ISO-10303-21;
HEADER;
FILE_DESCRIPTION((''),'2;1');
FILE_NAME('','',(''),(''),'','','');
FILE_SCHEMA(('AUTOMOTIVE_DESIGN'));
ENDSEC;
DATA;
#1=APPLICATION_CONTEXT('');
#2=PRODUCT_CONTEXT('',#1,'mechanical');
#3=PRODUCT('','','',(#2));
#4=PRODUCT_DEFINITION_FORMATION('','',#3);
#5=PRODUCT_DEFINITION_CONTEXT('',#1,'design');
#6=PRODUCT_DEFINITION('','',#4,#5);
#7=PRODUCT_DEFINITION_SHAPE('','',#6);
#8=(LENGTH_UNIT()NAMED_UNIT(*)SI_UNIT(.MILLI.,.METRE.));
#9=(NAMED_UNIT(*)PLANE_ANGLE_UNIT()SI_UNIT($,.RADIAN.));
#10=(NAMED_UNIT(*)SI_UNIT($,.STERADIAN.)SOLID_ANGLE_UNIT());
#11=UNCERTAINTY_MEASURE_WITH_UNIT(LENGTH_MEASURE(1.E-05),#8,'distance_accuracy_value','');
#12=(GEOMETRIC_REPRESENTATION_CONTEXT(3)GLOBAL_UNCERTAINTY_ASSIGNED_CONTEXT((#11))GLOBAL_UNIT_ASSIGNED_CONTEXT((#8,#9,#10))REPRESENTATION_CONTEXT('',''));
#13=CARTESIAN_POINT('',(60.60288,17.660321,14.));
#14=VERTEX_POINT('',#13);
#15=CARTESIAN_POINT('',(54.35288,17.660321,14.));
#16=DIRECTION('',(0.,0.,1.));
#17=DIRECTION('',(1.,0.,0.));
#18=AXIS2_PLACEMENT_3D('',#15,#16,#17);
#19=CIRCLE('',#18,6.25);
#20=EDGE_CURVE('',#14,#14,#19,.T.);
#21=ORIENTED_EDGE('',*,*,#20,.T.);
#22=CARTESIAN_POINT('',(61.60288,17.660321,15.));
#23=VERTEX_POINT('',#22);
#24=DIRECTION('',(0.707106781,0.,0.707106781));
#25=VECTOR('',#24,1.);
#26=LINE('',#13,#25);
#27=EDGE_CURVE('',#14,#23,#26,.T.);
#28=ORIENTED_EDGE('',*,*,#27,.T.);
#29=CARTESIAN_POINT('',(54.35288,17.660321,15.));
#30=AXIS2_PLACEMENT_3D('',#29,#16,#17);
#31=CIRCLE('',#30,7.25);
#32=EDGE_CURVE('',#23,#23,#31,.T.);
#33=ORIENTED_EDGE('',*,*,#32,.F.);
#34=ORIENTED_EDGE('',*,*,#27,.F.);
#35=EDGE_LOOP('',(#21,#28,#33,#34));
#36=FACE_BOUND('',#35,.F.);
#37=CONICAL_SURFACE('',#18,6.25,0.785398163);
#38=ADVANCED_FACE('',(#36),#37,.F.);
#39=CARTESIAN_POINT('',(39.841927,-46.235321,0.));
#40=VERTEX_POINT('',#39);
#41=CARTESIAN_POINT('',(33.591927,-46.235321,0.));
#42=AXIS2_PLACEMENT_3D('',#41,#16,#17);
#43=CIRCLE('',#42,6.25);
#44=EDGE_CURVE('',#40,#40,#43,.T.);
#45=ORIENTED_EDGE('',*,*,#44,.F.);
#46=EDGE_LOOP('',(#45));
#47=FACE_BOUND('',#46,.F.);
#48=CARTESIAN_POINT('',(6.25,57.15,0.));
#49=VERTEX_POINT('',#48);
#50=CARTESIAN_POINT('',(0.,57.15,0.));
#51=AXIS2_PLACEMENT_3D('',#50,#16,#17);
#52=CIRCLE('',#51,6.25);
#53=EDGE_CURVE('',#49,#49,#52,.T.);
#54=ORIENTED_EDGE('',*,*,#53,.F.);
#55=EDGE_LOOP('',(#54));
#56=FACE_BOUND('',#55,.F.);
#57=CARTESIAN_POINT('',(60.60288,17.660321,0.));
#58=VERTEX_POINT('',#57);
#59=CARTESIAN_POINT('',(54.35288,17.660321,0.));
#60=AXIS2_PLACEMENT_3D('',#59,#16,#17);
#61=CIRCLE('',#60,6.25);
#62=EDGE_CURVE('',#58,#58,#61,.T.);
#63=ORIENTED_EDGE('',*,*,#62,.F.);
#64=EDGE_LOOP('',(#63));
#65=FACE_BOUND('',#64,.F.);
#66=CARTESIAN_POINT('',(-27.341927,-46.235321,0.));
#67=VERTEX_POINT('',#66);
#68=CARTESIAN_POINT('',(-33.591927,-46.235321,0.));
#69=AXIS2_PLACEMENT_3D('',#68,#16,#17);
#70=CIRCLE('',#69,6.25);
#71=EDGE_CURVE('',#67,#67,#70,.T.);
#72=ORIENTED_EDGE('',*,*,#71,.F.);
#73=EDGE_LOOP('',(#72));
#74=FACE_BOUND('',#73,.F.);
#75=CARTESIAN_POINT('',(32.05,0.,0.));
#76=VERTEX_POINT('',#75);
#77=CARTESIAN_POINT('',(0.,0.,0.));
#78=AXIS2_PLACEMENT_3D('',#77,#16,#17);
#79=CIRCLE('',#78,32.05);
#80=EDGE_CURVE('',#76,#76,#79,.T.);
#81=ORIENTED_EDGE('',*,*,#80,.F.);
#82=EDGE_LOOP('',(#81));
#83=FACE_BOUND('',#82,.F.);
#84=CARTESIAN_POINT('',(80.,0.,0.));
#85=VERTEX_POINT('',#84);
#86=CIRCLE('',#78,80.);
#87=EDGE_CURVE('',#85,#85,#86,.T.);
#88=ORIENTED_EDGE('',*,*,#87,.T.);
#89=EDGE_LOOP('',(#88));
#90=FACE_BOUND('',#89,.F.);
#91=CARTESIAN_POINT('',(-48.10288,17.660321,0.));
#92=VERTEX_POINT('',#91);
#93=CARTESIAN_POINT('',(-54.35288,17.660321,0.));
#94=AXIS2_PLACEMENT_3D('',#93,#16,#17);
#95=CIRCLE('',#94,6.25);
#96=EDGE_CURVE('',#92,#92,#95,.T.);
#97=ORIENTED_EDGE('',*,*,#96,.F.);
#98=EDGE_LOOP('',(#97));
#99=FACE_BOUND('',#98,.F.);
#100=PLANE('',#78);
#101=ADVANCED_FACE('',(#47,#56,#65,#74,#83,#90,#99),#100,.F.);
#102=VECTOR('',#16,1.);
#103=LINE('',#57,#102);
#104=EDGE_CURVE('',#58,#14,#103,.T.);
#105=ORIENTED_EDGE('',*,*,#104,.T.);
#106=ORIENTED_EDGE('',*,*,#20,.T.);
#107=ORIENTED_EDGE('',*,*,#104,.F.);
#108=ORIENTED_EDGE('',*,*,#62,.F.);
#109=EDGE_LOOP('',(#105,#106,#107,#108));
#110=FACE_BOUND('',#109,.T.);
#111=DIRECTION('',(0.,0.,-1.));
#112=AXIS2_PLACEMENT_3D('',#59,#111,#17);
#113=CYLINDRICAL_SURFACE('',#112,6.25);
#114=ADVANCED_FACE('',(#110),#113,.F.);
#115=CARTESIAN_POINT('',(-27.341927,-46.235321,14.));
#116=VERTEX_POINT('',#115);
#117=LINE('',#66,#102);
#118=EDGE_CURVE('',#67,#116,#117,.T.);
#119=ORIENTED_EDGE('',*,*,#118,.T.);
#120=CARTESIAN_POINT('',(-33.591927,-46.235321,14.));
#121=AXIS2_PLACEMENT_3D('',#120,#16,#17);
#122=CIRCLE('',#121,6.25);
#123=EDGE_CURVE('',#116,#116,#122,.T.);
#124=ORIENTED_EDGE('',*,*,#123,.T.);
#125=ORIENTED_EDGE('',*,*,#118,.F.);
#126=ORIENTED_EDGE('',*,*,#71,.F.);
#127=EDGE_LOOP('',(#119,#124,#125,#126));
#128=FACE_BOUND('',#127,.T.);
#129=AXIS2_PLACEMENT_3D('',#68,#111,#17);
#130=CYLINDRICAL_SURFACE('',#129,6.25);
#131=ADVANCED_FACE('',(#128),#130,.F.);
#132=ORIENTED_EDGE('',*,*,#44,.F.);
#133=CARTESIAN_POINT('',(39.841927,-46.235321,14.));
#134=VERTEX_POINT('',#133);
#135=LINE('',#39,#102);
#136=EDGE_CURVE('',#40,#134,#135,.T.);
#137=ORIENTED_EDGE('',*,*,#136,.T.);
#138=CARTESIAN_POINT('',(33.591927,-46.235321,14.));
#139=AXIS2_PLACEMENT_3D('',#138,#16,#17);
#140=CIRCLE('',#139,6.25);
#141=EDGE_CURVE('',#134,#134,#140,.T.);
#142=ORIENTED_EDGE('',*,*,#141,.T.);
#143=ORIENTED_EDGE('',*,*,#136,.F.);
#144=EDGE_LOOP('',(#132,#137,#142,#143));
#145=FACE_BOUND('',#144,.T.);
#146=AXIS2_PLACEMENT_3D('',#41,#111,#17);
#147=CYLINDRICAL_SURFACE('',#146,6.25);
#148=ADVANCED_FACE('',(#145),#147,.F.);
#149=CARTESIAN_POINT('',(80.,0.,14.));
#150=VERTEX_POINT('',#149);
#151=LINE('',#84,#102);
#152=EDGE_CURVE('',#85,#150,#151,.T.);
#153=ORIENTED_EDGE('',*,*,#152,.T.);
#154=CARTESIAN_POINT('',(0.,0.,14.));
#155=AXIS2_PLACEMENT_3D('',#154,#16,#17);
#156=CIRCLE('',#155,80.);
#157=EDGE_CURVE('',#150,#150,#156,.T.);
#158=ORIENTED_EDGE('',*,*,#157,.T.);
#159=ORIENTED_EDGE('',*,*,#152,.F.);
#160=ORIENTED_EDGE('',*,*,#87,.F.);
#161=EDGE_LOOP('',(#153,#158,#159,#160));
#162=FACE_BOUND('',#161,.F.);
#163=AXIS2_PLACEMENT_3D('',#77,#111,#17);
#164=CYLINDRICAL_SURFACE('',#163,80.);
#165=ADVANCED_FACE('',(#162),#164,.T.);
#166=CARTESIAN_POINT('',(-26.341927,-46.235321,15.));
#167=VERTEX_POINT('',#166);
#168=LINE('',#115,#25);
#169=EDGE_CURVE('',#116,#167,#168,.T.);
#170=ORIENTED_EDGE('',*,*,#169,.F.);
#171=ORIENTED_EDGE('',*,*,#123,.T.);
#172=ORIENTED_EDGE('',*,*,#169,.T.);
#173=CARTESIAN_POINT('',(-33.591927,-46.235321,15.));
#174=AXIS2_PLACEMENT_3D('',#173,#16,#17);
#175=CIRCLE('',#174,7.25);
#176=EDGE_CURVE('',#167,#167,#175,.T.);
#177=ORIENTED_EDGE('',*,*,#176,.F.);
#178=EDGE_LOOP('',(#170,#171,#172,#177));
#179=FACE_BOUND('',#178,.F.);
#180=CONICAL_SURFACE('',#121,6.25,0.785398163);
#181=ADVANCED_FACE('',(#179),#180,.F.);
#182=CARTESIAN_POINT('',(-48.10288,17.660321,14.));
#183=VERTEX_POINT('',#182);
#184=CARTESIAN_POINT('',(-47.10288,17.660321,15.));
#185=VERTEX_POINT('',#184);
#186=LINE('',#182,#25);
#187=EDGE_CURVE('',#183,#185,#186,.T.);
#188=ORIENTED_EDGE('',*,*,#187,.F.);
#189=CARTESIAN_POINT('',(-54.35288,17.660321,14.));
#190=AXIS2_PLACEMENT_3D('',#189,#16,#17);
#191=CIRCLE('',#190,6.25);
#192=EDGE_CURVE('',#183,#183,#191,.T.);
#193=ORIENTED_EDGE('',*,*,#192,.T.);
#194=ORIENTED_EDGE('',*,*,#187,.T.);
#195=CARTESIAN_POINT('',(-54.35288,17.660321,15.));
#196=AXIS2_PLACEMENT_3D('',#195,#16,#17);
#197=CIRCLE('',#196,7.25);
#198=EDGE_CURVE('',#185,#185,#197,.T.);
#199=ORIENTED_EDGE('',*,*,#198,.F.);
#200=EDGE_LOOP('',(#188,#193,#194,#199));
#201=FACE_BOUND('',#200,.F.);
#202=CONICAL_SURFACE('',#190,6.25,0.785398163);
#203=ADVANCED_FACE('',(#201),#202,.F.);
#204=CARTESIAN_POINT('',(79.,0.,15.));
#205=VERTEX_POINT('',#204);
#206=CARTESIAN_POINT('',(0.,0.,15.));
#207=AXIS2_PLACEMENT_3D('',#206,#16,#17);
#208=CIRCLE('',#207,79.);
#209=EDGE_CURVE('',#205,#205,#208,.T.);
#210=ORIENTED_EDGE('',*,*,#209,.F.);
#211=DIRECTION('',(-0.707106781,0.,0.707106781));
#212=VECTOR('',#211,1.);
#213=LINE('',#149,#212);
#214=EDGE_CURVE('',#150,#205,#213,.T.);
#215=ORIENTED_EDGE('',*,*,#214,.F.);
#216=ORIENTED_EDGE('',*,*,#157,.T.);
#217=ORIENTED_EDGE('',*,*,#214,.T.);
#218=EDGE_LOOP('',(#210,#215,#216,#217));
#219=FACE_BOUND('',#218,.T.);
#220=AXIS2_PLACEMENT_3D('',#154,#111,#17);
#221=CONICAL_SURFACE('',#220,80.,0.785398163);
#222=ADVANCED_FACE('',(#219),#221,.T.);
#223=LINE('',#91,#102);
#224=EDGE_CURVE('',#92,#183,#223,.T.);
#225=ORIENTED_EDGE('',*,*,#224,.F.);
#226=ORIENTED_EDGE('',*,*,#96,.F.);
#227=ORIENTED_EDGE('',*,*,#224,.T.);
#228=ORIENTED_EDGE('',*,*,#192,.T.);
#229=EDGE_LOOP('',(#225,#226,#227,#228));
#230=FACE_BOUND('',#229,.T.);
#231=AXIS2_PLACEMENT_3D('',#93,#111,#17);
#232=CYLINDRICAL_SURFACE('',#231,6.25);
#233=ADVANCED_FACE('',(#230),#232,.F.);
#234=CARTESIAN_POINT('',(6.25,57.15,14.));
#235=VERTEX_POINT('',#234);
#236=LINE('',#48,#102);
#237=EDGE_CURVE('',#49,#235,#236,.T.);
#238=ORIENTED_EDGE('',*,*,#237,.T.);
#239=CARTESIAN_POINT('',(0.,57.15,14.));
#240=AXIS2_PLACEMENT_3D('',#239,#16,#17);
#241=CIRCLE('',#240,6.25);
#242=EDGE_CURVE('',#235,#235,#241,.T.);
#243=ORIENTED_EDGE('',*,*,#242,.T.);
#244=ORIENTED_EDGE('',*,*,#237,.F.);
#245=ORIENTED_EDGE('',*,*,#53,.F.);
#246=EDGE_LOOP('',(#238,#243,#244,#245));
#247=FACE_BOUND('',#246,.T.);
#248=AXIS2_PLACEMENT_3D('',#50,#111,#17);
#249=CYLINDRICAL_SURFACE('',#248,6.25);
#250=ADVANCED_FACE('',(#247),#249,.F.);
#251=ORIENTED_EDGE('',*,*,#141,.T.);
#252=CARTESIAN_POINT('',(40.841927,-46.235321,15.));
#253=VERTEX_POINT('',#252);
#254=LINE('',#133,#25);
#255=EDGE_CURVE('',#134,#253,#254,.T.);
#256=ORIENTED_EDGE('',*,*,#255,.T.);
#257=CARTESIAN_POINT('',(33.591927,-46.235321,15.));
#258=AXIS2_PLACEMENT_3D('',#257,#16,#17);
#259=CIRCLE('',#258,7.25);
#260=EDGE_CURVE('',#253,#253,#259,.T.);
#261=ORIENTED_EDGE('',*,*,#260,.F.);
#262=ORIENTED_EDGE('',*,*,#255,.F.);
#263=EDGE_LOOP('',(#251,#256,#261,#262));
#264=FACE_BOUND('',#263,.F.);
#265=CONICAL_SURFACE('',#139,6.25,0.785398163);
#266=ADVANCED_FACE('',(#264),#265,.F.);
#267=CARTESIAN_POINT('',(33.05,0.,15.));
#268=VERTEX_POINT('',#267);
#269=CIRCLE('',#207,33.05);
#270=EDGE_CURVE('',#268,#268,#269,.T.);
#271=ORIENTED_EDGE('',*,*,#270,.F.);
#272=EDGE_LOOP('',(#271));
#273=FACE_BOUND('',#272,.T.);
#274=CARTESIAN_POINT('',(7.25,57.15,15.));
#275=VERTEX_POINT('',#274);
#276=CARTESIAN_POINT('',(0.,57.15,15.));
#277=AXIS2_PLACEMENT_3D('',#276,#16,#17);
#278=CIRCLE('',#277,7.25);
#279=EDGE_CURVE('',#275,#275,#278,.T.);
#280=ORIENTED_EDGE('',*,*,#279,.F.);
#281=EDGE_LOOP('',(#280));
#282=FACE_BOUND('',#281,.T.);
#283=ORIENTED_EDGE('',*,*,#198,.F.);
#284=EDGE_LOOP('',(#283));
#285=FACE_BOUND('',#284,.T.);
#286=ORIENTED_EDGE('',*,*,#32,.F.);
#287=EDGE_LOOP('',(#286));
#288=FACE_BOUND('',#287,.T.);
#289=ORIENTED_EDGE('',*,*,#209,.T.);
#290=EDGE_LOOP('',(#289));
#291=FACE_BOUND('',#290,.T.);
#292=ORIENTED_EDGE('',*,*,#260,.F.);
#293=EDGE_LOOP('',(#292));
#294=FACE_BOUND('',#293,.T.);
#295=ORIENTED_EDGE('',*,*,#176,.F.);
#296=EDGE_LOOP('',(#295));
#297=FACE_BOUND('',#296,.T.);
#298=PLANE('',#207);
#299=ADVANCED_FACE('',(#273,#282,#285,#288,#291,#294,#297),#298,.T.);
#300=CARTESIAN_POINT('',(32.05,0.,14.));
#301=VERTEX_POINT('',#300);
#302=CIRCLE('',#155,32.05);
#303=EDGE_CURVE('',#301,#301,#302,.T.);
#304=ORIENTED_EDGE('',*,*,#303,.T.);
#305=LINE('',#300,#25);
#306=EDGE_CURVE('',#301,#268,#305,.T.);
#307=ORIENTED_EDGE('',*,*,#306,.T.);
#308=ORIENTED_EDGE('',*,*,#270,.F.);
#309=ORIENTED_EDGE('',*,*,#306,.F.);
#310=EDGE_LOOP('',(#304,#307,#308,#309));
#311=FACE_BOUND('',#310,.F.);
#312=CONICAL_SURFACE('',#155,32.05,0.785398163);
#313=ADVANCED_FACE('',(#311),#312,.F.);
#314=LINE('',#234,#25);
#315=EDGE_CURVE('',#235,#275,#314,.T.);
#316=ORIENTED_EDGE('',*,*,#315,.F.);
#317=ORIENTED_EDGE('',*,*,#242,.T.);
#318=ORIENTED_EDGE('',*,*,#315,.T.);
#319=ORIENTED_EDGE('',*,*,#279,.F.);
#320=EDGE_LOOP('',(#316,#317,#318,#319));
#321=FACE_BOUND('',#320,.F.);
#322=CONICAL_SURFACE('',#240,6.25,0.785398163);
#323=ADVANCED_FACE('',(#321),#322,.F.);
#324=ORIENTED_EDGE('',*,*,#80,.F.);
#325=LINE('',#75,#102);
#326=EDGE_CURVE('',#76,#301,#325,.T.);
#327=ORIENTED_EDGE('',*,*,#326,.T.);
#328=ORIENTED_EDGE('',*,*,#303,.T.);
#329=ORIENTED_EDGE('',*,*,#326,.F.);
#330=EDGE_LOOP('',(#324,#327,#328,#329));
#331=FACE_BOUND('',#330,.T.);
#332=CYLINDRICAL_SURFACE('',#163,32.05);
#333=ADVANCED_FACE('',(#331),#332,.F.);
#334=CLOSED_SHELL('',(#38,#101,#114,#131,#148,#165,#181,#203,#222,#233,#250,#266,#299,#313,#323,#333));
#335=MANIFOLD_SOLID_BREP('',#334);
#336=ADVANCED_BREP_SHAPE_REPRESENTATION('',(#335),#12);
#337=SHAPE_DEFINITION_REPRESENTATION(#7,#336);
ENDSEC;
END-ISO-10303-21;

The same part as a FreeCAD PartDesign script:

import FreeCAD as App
import Part
import Sketcher

V = App.Vector


def edges_at(feature, points):
    """Names of the edges that pass closest to the given points."""
    edges = feature.Shape.Edges
    near = lambda p: min(range(len(edges)), key=lambda i: edges[i].distToShape(Part.Vertex(*p))[0])
    return sorted({f"Edge{near(p) + 1}" for p in points})

doc = App.newDocument("Part")
body = doc.addObject("PartDesign::Body", "Body")

# Sketch on XY plane
sketch1 = body.newObject("Sketcher::SketchObject", "Sketch")
sketch1.AttachmentSupport = (doc.getObject("XY_Plane"), [""])
sketch1.MapMode = "FlatFace"
sketch1.addGeometry([
    Part.Circle(V(0, 0, 0), V(0, 0, 1), 80),  # 0
    Part.Circle(V(-33.591927, -46.235321, 0), V(0, 0, 1), 6.25),  # 1
    Part.Circle(V(0, 0, 0), V(0, 0, 1), 32.05),  # 2
    Part.Circle(V(33.591927, -46.235321, 0), V(0, 0, 1), 6.25),  # 3
    Part.Circle(V(-54.35288, 17.660321, 0), V(0, 0, 1), 6.25),  # 4
    Part.Circle(V(0, 57.15, 0), V(0, 0, 1), 6.25),  # 5
    Part.Circle(V(54.35288, 17.660321, 0), V(0, 0, 1), 6.25),  # 6
], False)
sketch1.addConstraint([
    Sketcher.Constraint("Coincident", 0, 3, -1, 1),
    Sketcher.Constraint("Coincident", 2, 3, -1, 1),
    Sketcher.Constraint("Equal", 1, 3),
    Sketcher.Constraint("Equal", 3, 4),
    Sketcher.Constraint("Equal", 4, 5),
    Sketcher.Constraint("Equal", 5, 6),
    Sketcher.Constraint("Symmetric", 1, 3, 3, 3, -2),
    Sketcher.Constraint("Symmetric", 4, 3, 6, 3, -2),
    Sketcher.Constraint("PointOnObject", 5, 3, -2),
    Sketcher.Constraint("Diameter", 0, 160.0),
    Sketcher.Constraint("Diameter", 1, 12.5),
    Sketcher.Constraint("Diameter", 2, 64.1),
    Sketcher.Constraint("DistanceY", -1, 1, 5, 3, 57.15),
    Sketcher.Constraint("DistanceY", 1, 3, -1, 1, 46.235321),
    Sketcher.Constraint("DistanceX", 4, 3, -1, 1, 54.35288),
    Sketcher.Constraint("DistanceY", -1, 1, 4, 3, 17.660321),
    Sketcher.Constraint("DistanceX", 1, 3, -1, 1, 33.591927),
])
pad1 = body.newObject("PartDesign::Pad", "Pad")
pad1.Profile = sketch1
pad1.Length = 15
doc.recompute()

chamfer = body.newObject("PartDesign::Chamfer", "Chamfer")
chamfer.Base = (pad1, edges_at(pad1, [
    (-80, 0, 15),
    (-39.842, -46.235, 15),
    (27.342, -46.235, 15),
    (-60.603, 17.66, 15),
    (-32.05, 0, 15),
    (48.103, 17.66, 15),
    (-6.25, 57.15, 15),
]))
chamfer.Size = 1

doc.recompute()
